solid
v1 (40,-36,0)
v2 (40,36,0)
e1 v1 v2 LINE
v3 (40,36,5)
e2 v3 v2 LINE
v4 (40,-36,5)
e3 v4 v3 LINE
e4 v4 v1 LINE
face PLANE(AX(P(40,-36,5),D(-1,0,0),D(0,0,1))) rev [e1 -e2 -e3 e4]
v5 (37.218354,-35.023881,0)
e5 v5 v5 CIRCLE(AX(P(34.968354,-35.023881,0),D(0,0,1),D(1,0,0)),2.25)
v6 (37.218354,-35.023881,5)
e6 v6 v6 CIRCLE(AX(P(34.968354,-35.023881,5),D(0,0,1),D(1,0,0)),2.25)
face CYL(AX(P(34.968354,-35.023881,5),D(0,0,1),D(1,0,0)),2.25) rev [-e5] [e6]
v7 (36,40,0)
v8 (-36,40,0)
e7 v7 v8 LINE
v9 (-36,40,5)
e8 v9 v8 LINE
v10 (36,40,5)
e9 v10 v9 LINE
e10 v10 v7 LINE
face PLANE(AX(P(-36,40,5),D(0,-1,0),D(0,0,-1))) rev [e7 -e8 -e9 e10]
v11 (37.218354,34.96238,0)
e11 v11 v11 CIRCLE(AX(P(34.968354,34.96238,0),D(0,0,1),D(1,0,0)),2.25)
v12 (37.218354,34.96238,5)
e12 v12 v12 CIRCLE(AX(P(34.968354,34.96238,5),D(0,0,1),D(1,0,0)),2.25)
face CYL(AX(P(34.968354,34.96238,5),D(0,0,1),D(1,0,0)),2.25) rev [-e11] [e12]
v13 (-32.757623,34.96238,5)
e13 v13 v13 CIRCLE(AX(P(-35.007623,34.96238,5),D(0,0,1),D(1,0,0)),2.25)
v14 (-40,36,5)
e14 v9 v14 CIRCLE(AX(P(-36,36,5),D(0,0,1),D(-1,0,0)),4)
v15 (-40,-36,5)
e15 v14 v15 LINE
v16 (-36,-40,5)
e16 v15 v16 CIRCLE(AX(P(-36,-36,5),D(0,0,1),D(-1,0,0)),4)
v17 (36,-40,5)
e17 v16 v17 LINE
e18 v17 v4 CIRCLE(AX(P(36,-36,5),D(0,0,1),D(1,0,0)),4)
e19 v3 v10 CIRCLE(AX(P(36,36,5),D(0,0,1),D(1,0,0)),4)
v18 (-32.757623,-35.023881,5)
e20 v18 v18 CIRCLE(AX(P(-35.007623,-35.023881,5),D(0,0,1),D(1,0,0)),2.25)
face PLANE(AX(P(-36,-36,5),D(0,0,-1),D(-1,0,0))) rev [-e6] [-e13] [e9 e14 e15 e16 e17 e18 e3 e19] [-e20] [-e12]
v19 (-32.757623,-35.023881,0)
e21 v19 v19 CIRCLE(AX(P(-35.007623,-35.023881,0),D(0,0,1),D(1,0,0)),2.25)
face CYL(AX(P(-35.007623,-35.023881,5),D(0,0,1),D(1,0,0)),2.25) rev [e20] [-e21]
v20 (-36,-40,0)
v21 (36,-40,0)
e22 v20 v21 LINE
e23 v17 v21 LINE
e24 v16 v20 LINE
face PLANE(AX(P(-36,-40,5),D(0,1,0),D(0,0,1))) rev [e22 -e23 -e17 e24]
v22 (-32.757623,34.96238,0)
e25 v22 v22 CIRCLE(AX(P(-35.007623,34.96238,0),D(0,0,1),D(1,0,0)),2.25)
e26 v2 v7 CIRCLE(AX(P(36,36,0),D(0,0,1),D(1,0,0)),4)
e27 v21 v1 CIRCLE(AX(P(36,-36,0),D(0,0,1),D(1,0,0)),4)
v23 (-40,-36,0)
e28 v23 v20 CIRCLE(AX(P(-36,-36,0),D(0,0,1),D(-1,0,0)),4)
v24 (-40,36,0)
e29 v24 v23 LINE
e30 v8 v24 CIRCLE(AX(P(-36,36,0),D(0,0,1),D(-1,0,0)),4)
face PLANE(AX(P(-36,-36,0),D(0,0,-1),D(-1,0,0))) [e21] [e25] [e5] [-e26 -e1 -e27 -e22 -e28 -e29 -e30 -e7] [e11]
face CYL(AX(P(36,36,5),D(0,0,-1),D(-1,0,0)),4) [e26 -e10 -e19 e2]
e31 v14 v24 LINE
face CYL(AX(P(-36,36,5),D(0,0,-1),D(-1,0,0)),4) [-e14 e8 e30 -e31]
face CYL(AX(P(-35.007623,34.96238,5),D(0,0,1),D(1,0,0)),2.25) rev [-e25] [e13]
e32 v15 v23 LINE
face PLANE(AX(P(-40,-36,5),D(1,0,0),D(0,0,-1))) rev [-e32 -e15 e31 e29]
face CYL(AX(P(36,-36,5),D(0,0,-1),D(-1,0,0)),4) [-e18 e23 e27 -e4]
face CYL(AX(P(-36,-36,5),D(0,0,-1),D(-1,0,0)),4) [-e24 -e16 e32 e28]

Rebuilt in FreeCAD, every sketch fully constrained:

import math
import FreeCAD as App
import Part
import Sketcher
from FreeCAD import Vector
Q = App.Units.Quantity

doc = App.newDocument("Part")
params = doc.addObject("Spreadsheet::Sheet", "Params")
for row, (alias, value) in enumerate([
    ("sketch1_radius", "4 mm"),
    ("sketch1_width", "72 mm"),
    ("pad1_length", "5 mm"),
    ("sketch2_diameter", "4.5 mm"),
    ("hole_diameter", "4.5 mm"),
], start=1):
    params.set(f"A{row}", alias)
    params.set(f"B{row}", "=" + value)
    params.setAlias(f"B{row}", alias)

body = doc.addObject("PartDesign::Body", "Body")

# Sketch on XY plane
sketch1 = body.newObject("Sketcher::SketchObject", "Sketch")
sketch1.AttachmentSupport = (doc.getObject("XY_Plane"), [""])
sketch1.MapMode = "FlatFace"
sketch1.addGeometry([
    Part.LineSegment(Vector(-36, -40, 0), Vector(36, -40, 0)),  # 0
    Part.ArcOfCircle(Part.Circle(Vector(36, -36, 0), Vector(0, 0, 1), 4), math.radians(-90), math.radians(0)),  # 1
    Part.LineSegment(Vector(40, -36, 0), Vector(40, 36, 0)),  # 2
    Part.ArcOfCircle(Part.Circle(Vector(36, 36, 0), Vector(0, 0, 1), 4), math.radians(0), math.radians(90)),  # 3
    Part.LineSegment(Vector(36, 40, 0), Vector(-36, 40, 0)),  # 4
    Part.ArcOfCircle(Part.Circle(Vector(-36, 36, 0), Vector(0, 0, 1), 4), math.radians(90), math.radians(180)),  # 5
    Part.LineSegment(Vector(-40, 36, 0), Vector(-40, -36, 0)),  # 6
    Part.ArcOfCircle(Part.Circle(Vector(-36, -36, 0), Vector(0, 0, 1), 4), math.radians(180), math.radians(270)),  # 7
], False)
sketch1.addConstraint([
    Sketcher.Constraint("Tangent", 0, 2, 1, 1),
    Sketcher.Constraint("Tangent", 1, 2, 2, 1),
    Sketcher.Constraint("Tangent", 2, 2, 3, 1),
    Sketcher.Constraint("Tangent", 3, 2, 4, 1),
    Sketcher.Constraint("Tangent", 4, 2, 5, 1),
    Sketcher.Constraint("Tangent", 5, 2, 6, 1),
    Sketcher.Constraint("Tangent", 6, 2, 7, 1),
    Sketcher.Constraint("Tangent", 7, 2, 0, 1),
    Sketcher.Constraint("Horizontal", 0),
    Sketcher.Constraint("Vertical", 2),
    Sketcher.Constraint("Horizontal", 4),
    Sketcher.Constraint("Vertical", 6),
    Sketcher.Constraint("Equal", 1, 3),
    Sketcher.Constraint("Equal", 3, 5),
    Sketcher.Constraint("Equal", 5, 7),
    Sketcher.Constraint("Symmetric", 1, 3, 5, 3, -1, 1),
    Sketcher.Constraint("Equal", 4, 2),
    Sketcher.Constraint("Radius", 1, Q("4 mm")),
    Sketcher.Constraint("DistanceX", 0, 1, 0, 2, Q("72 mm")),
])
sketch1.setExpression("Constraints[17]", "Params.sketch1_radius")
sketch1.setExpression("Constraints[18]", "Params.sketch1_width")
pad1 = body.newObject("PartDesign::Pad", "Pad")
pad1.Profile = sketch1
pad1.setExpression("Length", "Params.pad1_length")

# Sketch on XY plane
sketch2 = body.newObject("Sketcher::SketchObject", "Sketch001")
sketch2.AttachmentSupport = (doc.getObject("XY_Plane"), [""])
sketch2.MapMode = "FlatFace"
sketch2.AttachmentOffset = App.Placement(Vector(0, 0, 5), App.Rotation())
sketch2.addGeometry([
    Part.Circle(Vector(-35.007623, 34.96238, 0), Vector(0, 0, 1), 2.25),
    Part.Circle(Vector(34.968354, 34.96238, 0), Vector(0, 0, 1), 2.25),
    Part.Circle(Vector(34.968354, -35.023881, 0), Vector(0, 0, 1), 2.25),
    Part.Circle(Vector(-35.007623, -35.023881, 0), Vector(0, 0, 1), 2.25),
], False)
sketch2.addConstraint([
    Sketcher.Constraint("Equal", 0, 1),
    Sketcher.Constraint("Equal", 1, 2),
    Sketcher.Constraint("Equal", 2, 3),
    Sketcher.Constraint("Horizontal", 0, 3, 1, 3),
    Sketcher.Constraint("Horizontal", 2, 3, 3, 3),
    Sketcher.Constraint("Vertical", 1, 3, 2, 3),
    Sketcher.Constraint("Vertical", 0, 3, 3, 3),
    Sketcher.Constraint("Diameter", 0, Q("4.5 mm")),
    Sketcher.Constraint("DistanceY", -1, 1, 0, 3, Q("34.96238 mm")),
    Sketcher.Constraint("DistanceY", 2, 3, -1, 1, Q("35.023881 mm")),
    Sketcher.Constraint("DistanceX", 0, 3, -1, 1, Q("35.007623 mm")),
    Sketcher.Constraint("DistanceX", -1, 1, 1, 3, Q("34.968354 mm")),
])
sketch2.setExpression("Constraints[7]", "Params.sketch2_diameter")
doc.recompute()
hole = body.newObject("PartDesign::Hole", "Hole")
hole.Profile = sketch2
hole.ThreadType = "None"
hole.setExpression("Diameter", "Params.hole_diameter")
hole.DepthType = "ThroughAll"

doc.recompute()
